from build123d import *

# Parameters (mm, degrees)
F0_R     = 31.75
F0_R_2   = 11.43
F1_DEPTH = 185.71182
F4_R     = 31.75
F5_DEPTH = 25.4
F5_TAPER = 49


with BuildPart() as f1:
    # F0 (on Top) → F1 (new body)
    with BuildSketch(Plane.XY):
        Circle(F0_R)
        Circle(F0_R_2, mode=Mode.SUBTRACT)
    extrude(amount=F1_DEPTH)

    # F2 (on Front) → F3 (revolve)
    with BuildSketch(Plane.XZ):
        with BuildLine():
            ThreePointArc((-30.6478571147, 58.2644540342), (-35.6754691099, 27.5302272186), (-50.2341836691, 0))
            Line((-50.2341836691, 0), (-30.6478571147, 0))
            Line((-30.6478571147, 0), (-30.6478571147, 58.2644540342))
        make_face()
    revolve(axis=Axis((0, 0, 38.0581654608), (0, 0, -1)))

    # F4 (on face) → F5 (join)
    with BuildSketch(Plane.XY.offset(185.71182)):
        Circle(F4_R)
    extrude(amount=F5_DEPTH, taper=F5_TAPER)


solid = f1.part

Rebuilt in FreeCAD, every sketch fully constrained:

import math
import FreeCAD as App
import Part
import Sketcher
Q = App.Units.Quantity

doc = App.newDocument("Part")
body = doc.addObject("PartDesign::Body", "Body")

sketch1 = body.newObject("Sketcher::SketchObject", "Sketch")
sketch1.AttachmentSupport = (doc.getObject("XY_Plane"), [""])
sketch1.MapMode = "FlatFace"
sketch1.addGeometry(Part.Circle(App.Vector(0, 0, 0), App.Vector(0, 0, 1), 32), False)
sketch1.addGeometry(Part.Circle(App.Vector(0, 0, 0), App.Vector(0, 0, 1), 11), False)
sketch1.addConstraint(Sketcher.Constraint("Coincident", 0, 3, -1, 1))
sketch1.addConstraint(Sketcher.Constraint("Coincident", 1, 3, -1, 1))
sketch1.addConstraint(Sketcher.Constraint("Diameter", 0, Q("2.5 in")))
sketch1.addConstraint(Sketcher.Constraint("Diameter", 1, Q("0.9 in")))
pad1 = body.newObject("PartDesign::Pad", "Pad")
pad1.Profile = sketch1
pad1.Length = 185.71182

sketch2 = body.newObject("Sketcher::SketchObject", "Sketch001")
sketch2.AttachmentSupport = (doc.getObject("XZ_Plane"), [""])
sketch2.MapMode = "FlatFace"
sketch2.addGeometry(Part.ArcOfCircle(Part.Circle(App.Vector(-127, 58, 0), App.Vector(0, 0, 1), 96), math.radians(-37), math.radians(0)), False)
sketch2.addGeometry(Part.LineSegment(App.Vector(-50, 0, 0), App.Vector(-31, 0, 0)), False)
sketch2.addGeometry(Part.LineSegment(App.Vector(-31, 0, 0), App.Vector(-31, 58, 0)), False)
sketch2.addConstraint(Sketcher.Constraint("Coincident", 0, 1, 1, 1))
sketch2.addConstraint(Sketcher.Constraint("Coincident", 1, 2, 2, 1))
sketch2.addConstraint(Sketcher.Constraint("Tangent", 2, 2, 0, 2))
sketch2.addConstraint(Sketcher.Constraint("Horizontal", 1))
sketch2.addConstraint(Sketcher.Constraint("Vertical", 2))
sketch2.addConstraint(Sketcher.Constraint("PointOnObject", 0, 1, -1))
sketch2.addConstraint(Sketcher.Constraint("Radius", 0, 96.454299))
sketch2.addConstraint(Sketcher.Constraint("DistanceX", 1, 1, 1, 2, 19.586327))
sketch2.addConstraint(Sketcher.Constraint("DistanceX", 0, 3, -1, 1, 127.102156))
revolution = body.newObject("PartDesign::Revolution", "Revolution")
revolution.Profile = sketch2
revolution.ReferenceAxis = (sketch2, ["V_Axis"])
revolution.Angle = 360

sketch3 = body.newObject("Sketcher::SketchObject", "Sketch002")
sketch3.AttachmentSupport = (doc.getObject("XY_Plane"), [""])
sketch3.MapMode = "FlatFace"
sketch3.AttachmentOffset = App.Placement(App.Vector(0, 0, 185.71182), App.Rotation())
sketch3.addGeometry(Part.Circle(App.Vector(0, 0, 0), App.Vector(0, 0, 1), 32), False)
sketch3.addConstraint(Sketcher.Constraint("Coincident", 0, 3, -1, 1))
sketch3.addConstraint(Sketcher.Constraint("Diameter", 0, Q("2.5 in")))
pad2 = body.newObject("PartDesign::Pad", "Pad001")
pad2.Profile = sketch3
pad2.Length = Q("1 in")
pad2.TaperAngle = -49

doc.recompute()
